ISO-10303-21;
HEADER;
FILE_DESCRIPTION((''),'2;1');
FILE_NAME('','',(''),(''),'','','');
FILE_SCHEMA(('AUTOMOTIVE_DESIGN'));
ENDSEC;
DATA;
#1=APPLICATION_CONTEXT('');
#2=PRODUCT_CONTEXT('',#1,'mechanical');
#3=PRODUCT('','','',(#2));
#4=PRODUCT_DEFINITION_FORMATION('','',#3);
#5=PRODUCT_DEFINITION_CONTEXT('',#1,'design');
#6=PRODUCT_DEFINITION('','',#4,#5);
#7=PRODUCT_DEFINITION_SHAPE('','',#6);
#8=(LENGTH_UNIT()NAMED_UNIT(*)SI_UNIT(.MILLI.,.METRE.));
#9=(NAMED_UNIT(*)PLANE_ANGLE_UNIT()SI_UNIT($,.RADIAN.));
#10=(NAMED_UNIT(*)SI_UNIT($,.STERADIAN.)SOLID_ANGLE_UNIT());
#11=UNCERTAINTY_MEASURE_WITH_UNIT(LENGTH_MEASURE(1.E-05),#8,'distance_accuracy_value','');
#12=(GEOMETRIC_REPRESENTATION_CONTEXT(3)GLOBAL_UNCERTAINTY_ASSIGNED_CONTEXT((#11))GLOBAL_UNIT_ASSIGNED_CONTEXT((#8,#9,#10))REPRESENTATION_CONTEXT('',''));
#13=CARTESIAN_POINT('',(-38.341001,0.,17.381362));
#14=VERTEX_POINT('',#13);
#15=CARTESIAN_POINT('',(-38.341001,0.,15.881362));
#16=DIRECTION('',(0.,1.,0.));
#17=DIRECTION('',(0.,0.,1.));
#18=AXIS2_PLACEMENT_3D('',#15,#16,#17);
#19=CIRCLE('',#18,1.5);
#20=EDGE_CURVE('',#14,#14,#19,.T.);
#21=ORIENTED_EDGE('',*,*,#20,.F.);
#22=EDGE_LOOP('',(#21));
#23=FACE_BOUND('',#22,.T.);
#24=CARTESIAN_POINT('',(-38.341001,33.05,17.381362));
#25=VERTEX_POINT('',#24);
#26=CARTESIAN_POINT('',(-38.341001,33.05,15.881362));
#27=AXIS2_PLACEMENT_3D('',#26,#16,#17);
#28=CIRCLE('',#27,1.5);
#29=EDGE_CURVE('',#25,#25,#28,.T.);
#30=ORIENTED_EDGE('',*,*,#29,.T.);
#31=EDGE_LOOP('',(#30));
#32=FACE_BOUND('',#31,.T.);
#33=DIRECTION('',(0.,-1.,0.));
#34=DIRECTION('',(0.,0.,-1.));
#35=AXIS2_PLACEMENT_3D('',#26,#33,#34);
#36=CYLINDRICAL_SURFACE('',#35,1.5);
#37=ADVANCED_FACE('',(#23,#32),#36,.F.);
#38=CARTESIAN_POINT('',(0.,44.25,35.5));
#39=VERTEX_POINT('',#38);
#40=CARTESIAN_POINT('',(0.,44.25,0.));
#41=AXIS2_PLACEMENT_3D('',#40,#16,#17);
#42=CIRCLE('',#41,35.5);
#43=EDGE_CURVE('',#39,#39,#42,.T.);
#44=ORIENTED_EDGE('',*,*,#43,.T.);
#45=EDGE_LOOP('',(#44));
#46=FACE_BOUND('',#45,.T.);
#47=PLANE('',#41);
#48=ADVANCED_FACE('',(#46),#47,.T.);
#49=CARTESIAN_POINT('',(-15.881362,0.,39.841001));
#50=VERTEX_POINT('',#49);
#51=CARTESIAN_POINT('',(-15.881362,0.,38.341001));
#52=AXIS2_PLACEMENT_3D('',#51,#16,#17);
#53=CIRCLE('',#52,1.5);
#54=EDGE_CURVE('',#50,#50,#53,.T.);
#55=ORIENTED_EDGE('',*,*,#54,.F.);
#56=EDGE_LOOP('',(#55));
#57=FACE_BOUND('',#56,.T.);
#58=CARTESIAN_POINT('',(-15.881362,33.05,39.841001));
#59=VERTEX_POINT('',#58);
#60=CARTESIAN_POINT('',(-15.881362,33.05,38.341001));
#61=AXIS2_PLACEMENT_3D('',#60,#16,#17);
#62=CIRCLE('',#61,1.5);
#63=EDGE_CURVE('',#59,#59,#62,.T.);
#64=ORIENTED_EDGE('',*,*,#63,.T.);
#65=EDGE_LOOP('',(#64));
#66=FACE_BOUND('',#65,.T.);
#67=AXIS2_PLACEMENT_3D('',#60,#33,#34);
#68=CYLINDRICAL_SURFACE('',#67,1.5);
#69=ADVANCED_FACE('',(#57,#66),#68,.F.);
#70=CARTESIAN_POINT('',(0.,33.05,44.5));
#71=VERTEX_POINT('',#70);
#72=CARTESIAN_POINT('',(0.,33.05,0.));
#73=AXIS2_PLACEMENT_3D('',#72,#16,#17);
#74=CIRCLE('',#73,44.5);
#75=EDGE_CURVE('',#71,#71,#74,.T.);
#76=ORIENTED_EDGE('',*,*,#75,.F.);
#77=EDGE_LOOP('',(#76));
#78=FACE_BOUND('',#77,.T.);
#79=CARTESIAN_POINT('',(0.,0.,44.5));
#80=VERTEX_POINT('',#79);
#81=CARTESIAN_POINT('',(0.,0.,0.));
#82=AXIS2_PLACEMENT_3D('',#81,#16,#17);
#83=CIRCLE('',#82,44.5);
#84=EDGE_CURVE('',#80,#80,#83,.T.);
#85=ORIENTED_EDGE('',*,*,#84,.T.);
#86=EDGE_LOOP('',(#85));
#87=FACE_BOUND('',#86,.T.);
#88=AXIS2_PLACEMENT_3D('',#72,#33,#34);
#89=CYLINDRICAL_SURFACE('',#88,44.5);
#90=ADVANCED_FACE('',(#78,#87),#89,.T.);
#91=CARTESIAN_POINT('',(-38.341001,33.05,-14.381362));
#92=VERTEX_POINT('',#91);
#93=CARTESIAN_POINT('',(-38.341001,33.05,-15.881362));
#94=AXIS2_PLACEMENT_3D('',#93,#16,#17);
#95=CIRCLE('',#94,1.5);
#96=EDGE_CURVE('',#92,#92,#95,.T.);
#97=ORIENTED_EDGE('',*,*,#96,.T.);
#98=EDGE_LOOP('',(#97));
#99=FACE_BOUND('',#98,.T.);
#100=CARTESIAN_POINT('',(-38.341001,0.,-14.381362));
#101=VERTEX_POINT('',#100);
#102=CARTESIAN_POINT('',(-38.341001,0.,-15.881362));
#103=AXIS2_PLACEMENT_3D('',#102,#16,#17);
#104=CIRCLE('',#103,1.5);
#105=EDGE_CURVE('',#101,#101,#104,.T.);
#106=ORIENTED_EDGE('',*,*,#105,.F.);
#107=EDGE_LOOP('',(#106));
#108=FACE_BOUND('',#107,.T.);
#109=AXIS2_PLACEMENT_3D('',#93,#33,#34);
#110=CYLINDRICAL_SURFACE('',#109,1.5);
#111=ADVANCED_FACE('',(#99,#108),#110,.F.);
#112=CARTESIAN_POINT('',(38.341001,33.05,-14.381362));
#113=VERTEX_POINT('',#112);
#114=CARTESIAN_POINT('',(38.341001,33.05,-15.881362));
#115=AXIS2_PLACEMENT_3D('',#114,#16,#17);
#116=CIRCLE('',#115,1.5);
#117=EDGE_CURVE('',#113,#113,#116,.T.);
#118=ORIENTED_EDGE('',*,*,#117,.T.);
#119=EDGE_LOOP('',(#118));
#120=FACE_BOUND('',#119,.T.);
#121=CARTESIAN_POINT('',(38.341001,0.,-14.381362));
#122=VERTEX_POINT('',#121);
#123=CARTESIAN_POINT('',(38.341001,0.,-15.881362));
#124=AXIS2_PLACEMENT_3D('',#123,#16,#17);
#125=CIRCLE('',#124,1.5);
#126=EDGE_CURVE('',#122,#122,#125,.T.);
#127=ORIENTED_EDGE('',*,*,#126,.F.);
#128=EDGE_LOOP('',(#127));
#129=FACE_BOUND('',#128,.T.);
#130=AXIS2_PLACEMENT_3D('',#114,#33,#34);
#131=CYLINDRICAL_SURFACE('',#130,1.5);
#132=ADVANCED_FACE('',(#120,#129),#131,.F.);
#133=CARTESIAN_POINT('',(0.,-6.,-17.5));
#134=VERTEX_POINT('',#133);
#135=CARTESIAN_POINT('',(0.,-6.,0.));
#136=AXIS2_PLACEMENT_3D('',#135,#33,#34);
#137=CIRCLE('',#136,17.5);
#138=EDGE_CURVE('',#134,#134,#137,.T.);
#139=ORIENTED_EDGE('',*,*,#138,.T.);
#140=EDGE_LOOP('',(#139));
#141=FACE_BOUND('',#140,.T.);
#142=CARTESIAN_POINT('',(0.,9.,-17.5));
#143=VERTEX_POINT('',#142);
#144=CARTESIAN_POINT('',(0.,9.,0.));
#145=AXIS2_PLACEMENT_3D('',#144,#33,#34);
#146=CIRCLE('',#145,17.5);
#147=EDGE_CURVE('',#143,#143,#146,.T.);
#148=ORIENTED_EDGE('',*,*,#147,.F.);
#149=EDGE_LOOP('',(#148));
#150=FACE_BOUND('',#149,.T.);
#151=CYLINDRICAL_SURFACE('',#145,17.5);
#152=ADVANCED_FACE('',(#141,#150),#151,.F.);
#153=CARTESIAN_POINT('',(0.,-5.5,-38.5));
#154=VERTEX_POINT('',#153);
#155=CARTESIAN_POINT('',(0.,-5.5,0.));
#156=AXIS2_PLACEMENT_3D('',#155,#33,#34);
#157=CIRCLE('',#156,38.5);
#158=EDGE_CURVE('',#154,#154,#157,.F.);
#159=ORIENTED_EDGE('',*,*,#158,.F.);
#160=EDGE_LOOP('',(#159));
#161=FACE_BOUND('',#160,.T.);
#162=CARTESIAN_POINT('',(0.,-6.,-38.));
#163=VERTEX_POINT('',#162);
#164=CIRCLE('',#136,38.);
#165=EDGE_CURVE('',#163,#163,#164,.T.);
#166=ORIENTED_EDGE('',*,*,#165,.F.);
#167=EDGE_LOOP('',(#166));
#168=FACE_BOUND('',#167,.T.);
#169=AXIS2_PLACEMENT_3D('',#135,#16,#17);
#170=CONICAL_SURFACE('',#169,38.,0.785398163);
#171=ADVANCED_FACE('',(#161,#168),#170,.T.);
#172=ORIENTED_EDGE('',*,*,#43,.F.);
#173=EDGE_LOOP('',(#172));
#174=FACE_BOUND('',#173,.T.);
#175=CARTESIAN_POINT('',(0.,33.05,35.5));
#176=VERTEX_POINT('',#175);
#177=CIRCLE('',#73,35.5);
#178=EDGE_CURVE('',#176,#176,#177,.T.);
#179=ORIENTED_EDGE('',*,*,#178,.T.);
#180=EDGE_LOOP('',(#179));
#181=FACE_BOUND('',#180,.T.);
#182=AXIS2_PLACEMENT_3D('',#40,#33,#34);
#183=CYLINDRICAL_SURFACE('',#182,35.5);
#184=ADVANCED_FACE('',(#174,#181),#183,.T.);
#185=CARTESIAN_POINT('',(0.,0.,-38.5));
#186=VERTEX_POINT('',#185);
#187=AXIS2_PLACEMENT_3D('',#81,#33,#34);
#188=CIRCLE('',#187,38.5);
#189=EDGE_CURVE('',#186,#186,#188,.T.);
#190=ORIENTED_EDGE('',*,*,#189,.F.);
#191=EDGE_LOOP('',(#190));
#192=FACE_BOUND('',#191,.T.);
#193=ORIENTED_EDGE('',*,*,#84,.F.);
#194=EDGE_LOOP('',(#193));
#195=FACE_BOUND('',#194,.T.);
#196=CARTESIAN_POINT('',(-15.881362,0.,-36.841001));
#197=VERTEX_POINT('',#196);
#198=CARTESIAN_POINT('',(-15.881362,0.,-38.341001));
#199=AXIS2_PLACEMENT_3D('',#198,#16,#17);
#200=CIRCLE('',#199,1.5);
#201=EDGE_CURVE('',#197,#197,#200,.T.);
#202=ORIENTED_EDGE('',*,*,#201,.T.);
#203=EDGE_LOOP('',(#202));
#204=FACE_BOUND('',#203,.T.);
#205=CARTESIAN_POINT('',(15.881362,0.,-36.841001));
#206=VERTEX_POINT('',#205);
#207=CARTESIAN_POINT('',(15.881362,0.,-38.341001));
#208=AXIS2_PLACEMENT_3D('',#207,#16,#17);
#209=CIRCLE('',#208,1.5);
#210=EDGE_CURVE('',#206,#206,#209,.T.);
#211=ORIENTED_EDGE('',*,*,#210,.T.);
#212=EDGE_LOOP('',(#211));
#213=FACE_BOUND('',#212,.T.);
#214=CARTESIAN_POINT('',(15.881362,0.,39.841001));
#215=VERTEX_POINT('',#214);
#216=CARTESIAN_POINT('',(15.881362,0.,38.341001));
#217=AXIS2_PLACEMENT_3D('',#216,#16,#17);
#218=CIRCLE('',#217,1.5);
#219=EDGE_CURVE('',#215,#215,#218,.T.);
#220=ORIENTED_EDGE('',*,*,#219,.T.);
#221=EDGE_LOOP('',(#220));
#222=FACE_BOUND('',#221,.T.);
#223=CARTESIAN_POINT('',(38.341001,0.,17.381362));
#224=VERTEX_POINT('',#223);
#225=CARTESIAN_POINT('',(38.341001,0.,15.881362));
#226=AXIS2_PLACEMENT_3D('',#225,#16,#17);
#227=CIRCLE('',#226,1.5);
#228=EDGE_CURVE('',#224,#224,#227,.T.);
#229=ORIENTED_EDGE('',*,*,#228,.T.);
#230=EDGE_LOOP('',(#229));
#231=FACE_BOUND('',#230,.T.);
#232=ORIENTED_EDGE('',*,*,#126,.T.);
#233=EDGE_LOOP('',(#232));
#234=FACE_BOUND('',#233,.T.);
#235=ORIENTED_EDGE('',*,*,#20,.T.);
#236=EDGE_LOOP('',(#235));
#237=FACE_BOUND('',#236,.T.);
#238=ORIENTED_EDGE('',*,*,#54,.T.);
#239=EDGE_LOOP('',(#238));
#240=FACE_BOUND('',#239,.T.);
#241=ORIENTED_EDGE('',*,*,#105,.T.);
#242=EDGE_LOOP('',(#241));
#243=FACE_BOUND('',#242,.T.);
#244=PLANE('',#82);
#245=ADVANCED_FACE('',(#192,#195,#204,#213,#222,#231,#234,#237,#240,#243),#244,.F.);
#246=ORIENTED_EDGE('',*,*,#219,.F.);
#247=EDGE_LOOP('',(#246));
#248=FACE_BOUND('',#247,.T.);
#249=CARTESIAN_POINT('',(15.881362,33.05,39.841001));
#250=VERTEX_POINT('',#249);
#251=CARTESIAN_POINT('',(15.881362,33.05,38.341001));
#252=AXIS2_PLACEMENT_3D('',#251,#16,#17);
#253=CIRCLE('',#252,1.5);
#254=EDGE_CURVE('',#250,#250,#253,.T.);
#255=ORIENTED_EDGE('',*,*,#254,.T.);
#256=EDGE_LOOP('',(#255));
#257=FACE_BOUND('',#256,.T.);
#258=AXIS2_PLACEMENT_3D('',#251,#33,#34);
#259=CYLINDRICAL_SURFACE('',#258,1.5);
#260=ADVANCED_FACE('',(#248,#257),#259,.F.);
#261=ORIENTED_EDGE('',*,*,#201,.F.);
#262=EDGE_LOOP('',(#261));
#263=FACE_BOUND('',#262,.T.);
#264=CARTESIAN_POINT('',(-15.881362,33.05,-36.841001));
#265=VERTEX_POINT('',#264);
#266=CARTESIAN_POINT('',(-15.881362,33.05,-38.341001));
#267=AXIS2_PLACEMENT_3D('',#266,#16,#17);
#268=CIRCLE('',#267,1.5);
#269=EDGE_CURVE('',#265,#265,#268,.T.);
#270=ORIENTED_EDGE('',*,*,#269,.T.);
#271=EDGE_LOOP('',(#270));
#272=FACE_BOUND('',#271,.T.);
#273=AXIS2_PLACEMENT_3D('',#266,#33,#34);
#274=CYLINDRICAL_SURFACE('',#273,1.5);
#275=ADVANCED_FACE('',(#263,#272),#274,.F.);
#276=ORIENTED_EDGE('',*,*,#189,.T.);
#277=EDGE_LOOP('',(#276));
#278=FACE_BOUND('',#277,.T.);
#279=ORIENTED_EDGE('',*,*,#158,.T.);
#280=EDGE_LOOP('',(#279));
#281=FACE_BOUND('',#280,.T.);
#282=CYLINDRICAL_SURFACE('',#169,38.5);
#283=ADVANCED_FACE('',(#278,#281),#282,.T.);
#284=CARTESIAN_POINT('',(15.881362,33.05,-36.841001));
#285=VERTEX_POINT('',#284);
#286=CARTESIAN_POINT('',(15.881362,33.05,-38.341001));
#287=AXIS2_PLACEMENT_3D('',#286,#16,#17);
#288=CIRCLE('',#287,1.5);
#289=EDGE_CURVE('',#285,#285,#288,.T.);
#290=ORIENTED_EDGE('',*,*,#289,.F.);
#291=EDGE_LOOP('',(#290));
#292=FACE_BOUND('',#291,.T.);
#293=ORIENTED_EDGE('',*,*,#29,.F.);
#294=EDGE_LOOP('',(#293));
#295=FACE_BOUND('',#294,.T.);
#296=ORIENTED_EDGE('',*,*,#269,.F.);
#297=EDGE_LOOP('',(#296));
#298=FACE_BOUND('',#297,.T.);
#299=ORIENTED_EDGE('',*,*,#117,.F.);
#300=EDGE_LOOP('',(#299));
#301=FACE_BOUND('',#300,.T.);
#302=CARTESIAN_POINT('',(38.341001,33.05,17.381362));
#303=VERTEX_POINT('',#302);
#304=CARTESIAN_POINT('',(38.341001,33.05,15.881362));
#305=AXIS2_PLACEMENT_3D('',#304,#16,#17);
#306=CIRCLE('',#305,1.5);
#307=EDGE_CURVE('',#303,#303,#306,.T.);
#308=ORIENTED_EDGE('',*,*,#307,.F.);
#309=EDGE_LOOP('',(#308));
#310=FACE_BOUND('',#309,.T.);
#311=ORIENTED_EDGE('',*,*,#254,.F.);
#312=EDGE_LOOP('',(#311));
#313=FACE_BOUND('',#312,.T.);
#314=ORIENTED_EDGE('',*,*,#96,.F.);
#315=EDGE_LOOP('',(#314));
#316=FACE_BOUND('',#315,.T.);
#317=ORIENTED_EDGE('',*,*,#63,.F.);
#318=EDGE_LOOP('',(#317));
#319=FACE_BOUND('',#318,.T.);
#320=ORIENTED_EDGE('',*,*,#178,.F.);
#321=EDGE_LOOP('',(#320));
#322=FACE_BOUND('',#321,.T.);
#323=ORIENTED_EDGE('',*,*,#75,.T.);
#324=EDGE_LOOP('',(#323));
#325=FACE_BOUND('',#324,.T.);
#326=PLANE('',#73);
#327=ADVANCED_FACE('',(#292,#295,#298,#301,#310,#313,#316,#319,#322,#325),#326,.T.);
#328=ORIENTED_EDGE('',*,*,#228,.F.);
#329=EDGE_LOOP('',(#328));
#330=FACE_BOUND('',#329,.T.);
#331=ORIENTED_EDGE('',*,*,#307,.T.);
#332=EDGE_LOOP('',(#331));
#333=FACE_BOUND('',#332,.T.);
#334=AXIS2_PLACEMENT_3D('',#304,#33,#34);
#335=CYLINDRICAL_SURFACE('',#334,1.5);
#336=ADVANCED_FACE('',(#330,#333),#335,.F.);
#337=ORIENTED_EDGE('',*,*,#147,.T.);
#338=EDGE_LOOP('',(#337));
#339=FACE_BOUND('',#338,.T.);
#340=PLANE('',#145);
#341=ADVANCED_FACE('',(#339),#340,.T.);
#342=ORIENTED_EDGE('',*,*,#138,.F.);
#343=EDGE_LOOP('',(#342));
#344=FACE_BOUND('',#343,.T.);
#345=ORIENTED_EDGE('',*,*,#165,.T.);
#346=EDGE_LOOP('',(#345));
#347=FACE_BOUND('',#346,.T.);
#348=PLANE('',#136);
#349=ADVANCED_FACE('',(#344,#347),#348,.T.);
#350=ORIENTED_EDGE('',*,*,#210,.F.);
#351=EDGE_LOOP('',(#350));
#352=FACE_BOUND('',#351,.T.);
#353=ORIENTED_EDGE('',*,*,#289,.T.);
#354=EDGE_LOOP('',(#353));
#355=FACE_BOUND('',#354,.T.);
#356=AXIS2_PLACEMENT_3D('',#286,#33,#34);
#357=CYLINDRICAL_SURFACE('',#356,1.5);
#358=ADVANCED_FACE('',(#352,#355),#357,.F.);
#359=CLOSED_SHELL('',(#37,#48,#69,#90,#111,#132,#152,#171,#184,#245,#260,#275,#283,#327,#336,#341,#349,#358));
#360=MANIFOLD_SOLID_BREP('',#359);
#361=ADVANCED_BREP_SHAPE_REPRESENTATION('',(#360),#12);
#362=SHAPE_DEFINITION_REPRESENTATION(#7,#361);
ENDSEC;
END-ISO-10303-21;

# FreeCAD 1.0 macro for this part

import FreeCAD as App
import Part
import Sketcher

V = App.Vector


def edges_at(feature, points):
    """Names of the edges that pass closest to the given points."""
    edges = feature.Shape.Edges
    near = lambda p: min(range(len(edges)), key=lambda i: edges[i].distToShape(Part.Vertex(*p))[0])
    return sorted({f"Edge{near(p) + 1}" for p in points})

doc = App.newDocument("Part")
body = doc.addObject("PartDesign::Body", "Body")

# Sketch on XZ plane
sketch1 = body.newObject("Sketcher::SketchObject", "Sketch")
sketch1.AttachmentSupport = (doc.getObject("XZ_Plane"), [""])
sketch1.MapMode = "FlatFace"
sketch1.addGeometry(Part.Circle(V(0, 0, 0), V(0, 0, 1), 44.5), False)
sketch1.addGeometry(Part.Circle(V(-38.341001, -15.881362, 0), V(0, 0, 1), 1.5), False)
sketch1.addGeometry(Part.Circle(V(-15.881362, -38.341001, 0), V(0, 0, 1), 1.5), False)
sketch1.addGeometry(Part.Circle(V(-38.341001, 15.881362, 0), V(0, 0, 1), 1.5), False)
sketch1.addGeometry(Part.Circle(V(-15.881362, 38.341001, 0), V(0, 0, 1), 1.5), False)
sketch1.addGeometry(Part.Circle(V(15.881362, -38.341001, 0), V(0, 0, 1), 1.5), False)
sketch1.addGeometry(Part.Circle(V(38.341001, -15.881362, 0), V(0, 0, 1), 1.5), False)
sketch1.addGeometry(Part.Circle(V(15.881362, 38.341001, 0), V(0, 0, 1), 1.5), False)
sketch1.addGeometry(Part.Circle(V(38.341001, 15.881362, 0), V(0, 0, 1), 1.5), False)
sketch1.addConstraint(Sketcher.Constraint("Coincident", 0, 3, -1, 1))
sketch1.addConstraint(Sketcher.Constraint("Equal", 1, 2))
sketch1.addConstraint(Sketcher.Constraint("Equal", 2, 3))
sketch1.addConstraint(Sketcher.Constraint("Equal", 3, 4))
sketch1.addConstraint(Sketcher.Constraint("Equal", 4, 5))
sketch1.addConstraint(Sketcher.Constraint("Equal", 5, 6))
sketch1.addConstraint(Sketcher.Constraint("Equal", 6, 7))
sketch1.addConstraint(Sketcher.Constraint("Equal", 7, 8))
sketch1.addConstraint(Sketcher.Constraint("Symmetric", 4, 3, 5, 3, -1, 1))
sketch1.addConstraint(Sketcher.Constraint("Symmetric", 3, 3, 6, 3, -1, 1))
sketch1.addConstraint(Sketcher.Constraint("Symmetric", 2, 3, 7, 3, -1, 1))
sketch1.addConstraint(Sketcher.Constraint("Symmetric", 1, 3, 8, 3, -1, 1))
sketch1.addConstraint(Sketcher.Constraint("Symmetric", 2, 3, 5, 3, -2))
sketch1.addConstraint(Sketcher.Constraint("Symmetric", 1, 3, 6, 3, -2))
sketch1.addConstraint(Sketcher.Constraint("Diameter", 0, 89.0))
sketch1.addConstraint(Sketcher.Constraint("Diameter", 1, 3.0))
sketch1.addConstraint(Sketcher.Constraint("DistanceX", 1, 3, -1, 1, 38.341001))
sketch1.addConstraint(Sketcher.Constraint("DistanceY", 2, 3, -1, 1, 38.341001))
sketch1.addConstraint(Sketcher.Constraint("DistanceX", 1, 3, 2, 3, 22.459638))
sketch1.addConstraint(Sketcher.Constraint("DistanceY", 2, 3, 1, 3, 22.459638))
pad1 = body.newObject("PartDesign::Pad", "Pad")
pad1.Profile = sketch1
pad1.Length = 33.05
pad1.Reversed = True

# Sketch on XZ plane
sketch2 = body.newObject("Sketcher::SketchObject", "Sketch001")
sketch2.AttachmentSupport = (doc.getObject("XZ_Plane"), [""])
sketch2.MapMode = "FlatFace"
sketch2.AttachmentOffset = App.Placement(V(0, 0, -33.05), App.Rotation())
sketch2.addGeometry(Part.Circle(V(0, 0, 0), V(0, 0, 1), 35.5), False)
sketch2.addConstraint(Sketcher.Constraint("Coincident", 0, 3, -1, 1))
sketch2.addConstraint(Sketcher.Constraint("Diameter", 0, 71.0))
pad2 = body.newObject("PartDesign::Pad", "Pad001")
pad2.Profile = sketch2
pad2.Length = 11.2
pad2.Reversed = True

# Sketch on XZ plane
sketch3 = body.newObject("Sketcher::SketchObject", "Sketch002")
sketch3.AttachmentSupport = (doc.getObject("XZ_Plane"), [""])
sketch3.MapMode = "FlatFace"
sketch3.addGeometry(Part.Circle(V(0, 0, 0), V(0, 0, 1), 38.5), False)
sketch3.addConstraint(Sketcher.Constraint("Coincident", 0, 3, -1, 1))
sketch3.addConstraint(Sketcher.Constraint("Diameter", 0, 77.0))
pad3 = body.newObject("PartDesign::Pad", "Pad002")
pad3.Profile = sketch3
pad3.Length = 6
doc.recompute()

chamfer = body.newObject("PartDesign::Chamfer", "Chamfer")
chamfer.Base = (pad3, edges_at(pad3, [(0, -6, 38.5)]))
chamfer.Size = 0.5

# Sketch on XZ plane
sketch4 = body.newObject("Sketcher::SketchObject", "Sketch003")
sketch4.AttachmentSupport = (doc.getObject("XZ_Plane"), [""])
sketch4.MapMode = "FlatFace"
sketch4.AttachmentOffset = App.Placement(V(0, 0, 6), App.Rotation())
sketch4.addGeometry(Part.Circle(V(0, 0, 0), V(0, 0, 1), 17.5), False)
sketch4.addConstraint(Sketcher.Constraint("Coincident", 0, 3, -1, 1))
sketch4.addConstraint(Sketcher.Constraint("Diameter", 0, 35.0))
pocket1 = body.newObject("PartDesign::Pocket", "Pocket")
pocket1.Profile = sketch4
pocket1.Length = 15

doc.recompute()
